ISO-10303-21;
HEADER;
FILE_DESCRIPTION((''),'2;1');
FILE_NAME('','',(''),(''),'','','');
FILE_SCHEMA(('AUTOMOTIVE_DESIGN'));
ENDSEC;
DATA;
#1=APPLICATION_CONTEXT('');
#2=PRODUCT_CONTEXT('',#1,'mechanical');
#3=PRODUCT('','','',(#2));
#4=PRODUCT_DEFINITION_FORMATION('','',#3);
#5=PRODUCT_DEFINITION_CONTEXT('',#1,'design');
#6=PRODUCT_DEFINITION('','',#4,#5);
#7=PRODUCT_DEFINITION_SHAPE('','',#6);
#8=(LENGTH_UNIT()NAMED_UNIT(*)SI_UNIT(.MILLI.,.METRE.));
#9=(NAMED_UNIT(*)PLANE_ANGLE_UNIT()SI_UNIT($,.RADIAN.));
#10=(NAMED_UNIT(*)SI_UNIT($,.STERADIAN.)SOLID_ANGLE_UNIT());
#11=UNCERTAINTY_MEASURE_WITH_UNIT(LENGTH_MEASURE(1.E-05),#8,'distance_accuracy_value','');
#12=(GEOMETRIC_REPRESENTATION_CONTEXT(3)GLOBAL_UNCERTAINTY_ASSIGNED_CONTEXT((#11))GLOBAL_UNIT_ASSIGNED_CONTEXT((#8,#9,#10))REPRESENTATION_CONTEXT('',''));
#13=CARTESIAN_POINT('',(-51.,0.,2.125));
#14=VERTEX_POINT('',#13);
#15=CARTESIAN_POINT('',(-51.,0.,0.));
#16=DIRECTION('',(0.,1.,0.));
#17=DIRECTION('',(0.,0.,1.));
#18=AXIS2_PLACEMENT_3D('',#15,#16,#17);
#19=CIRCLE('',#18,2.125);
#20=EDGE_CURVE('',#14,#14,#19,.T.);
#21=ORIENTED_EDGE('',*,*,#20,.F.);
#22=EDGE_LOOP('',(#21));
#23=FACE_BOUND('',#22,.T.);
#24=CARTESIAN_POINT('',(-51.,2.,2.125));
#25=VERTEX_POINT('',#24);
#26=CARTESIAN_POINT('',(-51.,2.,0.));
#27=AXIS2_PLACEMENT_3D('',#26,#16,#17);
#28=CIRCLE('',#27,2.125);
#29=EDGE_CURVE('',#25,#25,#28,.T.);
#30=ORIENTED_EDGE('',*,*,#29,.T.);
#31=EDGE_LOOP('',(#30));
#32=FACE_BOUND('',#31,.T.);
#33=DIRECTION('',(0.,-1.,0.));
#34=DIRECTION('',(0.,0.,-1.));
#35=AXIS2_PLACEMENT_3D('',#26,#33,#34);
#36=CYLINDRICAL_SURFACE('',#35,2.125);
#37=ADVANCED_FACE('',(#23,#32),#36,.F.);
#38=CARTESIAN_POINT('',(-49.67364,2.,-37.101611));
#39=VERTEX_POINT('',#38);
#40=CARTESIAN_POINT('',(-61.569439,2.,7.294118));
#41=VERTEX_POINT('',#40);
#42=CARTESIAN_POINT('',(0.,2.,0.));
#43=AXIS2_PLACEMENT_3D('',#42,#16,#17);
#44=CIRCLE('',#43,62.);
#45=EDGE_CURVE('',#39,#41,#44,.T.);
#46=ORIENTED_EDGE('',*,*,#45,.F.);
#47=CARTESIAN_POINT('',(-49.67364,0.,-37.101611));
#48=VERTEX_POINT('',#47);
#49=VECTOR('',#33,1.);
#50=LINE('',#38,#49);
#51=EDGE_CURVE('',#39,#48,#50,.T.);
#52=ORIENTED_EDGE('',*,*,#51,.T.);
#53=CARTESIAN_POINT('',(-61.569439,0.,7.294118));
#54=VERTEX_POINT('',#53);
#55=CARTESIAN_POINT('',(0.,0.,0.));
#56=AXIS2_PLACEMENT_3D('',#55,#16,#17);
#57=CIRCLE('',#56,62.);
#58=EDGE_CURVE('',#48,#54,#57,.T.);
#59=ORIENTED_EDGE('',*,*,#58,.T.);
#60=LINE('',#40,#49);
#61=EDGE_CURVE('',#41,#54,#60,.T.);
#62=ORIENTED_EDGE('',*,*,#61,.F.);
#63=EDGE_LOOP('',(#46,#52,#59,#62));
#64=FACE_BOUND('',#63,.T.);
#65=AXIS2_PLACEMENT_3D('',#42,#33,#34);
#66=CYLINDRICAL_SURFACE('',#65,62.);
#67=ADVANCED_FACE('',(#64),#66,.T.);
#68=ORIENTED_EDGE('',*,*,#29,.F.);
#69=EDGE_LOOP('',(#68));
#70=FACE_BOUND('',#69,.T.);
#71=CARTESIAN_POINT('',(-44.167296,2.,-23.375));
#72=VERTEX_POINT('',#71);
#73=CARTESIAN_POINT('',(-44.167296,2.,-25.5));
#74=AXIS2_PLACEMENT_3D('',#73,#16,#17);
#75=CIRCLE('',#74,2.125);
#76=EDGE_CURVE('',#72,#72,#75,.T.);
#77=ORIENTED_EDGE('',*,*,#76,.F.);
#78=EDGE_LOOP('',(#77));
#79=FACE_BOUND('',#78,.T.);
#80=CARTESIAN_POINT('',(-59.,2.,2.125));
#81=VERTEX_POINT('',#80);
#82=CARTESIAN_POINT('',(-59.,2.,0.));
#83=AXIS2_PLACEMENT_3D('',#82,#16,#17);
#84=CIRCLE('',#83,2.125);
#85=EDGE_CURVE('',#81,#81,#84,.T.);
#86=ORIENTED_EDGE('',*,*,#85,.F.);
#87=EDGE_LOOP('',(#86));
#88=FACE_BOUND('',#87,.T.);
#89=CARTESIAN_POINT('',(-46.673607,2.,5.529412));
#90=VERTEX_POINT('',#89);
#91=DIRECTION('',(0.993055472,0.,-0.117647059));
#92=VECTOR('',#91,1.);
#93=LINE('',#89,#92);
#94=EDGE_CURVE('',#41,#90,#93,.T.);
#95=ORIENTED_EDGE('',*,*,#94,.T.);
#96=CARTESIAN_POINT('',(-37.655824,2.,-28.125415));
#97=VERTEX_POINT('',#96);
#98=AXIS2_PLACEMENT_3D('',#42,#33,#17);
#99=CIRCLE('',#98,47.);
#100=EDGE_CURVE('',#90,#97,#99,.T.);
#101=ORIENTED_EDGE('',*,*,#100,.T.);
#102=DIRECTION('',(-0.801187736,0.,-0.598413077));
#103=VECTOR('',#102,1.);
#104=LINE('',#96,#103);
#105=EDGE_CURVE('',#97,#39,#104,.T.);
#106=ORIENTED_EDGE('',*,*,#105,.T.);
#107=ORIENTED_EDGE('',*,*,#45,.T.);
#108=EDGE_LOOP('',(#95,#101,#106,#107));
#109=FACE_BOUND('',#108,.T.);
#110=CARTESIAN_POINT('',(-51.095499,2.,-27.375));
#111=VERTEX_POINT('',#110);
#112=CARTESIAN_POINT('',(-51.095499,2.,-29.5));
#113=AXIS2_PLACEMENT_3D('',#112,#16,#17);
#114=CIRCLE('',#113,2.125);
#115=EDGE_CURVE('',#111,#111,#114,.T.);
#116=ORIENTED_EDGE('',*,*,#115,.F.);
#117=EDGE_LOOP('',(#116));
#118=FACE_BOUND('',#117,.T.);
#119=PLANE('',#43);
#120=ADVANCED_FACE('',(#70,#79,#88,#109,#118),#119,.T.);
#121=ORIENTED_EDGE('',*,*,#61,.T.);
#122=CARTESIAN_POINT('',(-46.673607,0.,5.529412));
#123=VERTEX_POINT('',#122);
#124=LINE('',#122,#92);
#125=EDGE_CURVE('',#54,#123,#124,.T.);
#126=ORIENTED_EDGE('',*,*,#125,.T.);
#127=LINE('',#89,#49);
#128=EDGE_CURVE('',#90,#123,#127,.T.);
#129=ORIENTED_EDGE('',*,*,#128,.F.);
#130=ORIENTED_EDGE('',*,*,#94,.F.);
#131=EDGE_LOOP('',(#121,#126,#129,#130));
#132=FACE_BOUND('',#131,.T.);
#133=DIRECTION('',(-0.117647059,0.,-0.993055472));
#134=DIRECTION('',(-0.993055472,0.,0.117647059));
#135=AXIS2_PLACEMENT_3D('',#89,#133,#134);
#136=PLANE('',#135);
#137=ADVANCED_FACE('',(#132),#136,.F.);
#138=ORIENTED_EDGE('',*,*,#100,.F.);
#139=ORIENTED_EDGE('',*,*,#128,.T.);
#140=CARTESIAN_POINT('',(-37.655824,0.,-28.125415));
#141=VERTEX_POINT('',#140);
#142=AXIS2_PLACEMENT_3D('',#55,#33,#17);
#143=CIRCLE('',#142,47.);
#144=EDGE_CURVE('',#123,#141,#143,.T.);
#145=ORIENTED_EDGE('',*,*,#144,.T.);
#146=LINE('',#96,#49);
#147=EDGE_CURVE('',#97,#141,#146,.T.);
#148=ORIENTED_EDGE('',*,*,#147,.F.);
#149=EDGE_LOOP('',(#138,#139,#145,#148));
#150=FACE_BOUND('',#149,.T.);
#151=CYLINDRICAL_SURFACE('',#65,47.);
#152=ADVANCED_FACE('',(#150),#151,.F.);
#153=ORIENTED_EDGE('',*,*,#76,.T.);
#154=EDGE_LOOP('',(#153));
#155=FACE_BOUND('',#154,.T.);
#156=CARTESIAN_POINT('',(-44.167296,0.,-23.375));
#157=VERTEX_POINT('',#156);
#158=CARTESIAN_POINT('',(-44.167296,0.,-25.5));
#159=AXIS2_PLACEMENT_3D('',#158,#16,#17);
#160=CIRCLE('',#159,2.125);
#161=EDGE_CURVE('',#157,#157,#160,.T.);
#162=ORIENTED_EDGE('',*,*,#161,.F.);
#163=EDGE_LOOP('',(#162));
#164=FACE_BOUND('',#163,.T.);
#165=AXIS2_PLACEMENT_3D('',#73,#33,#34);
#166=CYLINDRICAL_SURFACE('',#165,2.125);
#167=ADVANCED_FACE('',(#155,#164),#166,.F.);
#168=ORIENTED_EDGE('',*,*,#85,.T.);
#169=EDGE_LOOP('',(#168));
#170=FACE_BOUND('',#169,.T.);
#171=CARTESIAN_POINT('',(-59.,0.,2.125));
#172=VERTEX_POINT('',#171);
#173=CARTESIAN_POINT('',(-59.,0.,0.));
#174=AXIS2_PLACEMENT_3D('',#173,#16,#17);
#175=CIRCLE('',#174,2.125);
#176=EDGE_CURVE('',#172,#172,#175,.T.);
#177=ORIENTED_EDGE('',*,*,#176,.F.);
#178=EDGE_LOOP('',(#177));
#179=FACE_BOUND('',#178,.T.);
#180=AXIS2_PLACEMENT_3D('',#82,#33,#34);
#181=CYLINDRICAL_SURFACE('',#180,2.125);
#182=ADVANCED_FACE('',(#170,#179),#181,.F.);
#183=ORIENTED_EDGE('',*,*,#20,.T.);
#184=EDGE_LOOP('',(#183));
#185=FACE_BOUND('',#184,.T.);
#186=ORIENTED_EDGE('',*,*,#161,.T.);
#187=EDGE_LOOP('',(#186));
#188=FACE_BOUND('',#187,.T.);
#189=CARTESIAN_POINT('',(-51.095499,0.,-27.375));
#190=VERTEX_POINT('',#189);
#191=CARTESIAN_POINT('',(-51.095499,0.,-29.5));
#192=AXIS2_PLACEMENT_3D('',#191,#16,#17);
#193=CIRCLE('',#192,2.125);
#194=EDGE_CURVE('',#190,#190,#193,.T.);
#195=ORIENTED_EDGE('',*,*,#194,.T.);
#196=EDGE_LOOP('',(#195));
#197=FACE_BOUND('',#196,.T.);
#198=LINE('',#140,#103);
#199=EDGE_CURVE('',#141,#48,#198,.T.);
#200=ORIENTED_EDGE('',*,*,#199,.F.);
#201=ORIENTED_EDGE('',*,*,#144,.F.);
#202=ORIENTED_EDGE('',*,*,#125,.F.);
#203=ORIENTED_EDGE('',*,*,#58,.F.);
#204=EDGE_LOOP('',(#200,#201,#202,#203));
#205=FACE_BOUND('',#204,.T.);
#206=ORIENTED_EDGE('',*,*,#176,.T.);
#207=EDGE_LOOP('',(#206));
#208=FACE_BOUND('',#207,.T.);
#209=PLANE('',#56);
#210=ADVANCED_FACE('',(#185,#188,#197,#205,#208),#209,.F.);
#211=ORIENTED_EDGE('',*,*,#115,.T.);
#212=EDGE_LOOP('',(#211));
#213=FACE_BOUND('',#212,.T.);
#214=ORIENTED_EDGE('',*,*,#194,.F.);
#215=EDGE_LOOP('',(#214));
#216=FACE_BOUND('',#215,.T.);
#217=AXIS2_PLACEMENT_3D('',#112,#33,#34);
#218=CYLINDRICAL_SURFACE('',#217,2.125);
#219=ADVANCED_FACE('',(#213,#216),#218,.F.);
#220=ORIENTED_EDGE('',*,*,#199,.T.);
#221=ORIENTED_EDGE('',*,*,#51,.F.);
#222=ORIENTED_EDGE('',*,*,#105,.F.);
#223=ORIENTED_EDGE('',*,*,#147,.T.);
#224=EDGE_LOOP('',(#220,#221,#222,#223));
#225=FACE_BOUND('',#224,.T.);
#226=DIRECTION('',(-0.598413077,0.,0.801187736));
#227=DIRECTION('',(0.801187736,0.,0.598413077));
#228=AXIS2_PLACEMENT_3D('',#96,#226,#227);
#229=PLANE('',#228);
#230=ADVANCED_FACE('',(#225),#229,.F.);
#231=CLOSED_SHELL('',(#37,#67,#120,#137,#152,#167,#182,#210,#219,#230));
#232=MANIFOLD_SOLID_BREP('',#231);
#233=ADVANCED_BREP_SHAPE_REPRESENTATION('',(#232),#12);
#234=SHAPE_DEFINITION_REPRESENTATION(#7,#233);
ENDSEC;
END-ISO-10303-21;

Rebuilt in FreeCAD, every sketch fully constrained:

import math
import FreeCAD as App
import Part
import Sketcher

doc = App.newDocument("Part")
body = doc.addObject("PartDesign::Body", "Body")

# Sketch on XZ plane
sketch1 = body.newObject("Sketcher::SketchObject", "Sketch")
sketch1.AttachmentSupport = (doc.getObject("XZ_Plane"), [""])
sketch1.MapMode = "FlatFace"
sketch1.addGeometry(Part.LineSegment(App.Vector(-37.7, -28.1, 0), App.Vector(-49.7, -37.1, 0)), False)
sketch1.addGeometry(Part.ArcOfCircle(Part.Circle(App.Vector(0, 0, 0), App.Vector(0, 0, 1), 62), math.radians(173), math.radians(217)), False)
sketch1.addGeometry(Part.LineSegment(App.Vector(-61.6, 7.3, 0), App.Vector(-46.7, 5.5, 0)), False)
sketch1.addGeometry(Part.ArcOfCircle(Part.Circle(App.Vector(0, 0, 0), App.Vector(0, 0, 1), 47), math.radians(173), math.radians(217)), False)
sketch1.addGeometry(Part.Circle(App.Vector(-59, 0, 0), App.Vector(0, 0, 1), 2.1), False)
sketch1.addGeometry(Part.Circle(App.Vector(-51, 0, 0), App.Vector(0, 0, 1), 2.1), False)
sketch1.addGeometry(Part.Circle(App.Vector(-51.1, -29.5, 0), App.Vector(0, 0, 1), 2.1), False)
sketch1.addGeometry(Part.Circle(App.Vector(-44.2, -25.5, 0), App.Vector(0, 0, 1), 2.1), False)
sketch1.addConstraint(Sketcher.Constraint("Coincident", 0, 2, 1, 2))
sketch1.addConstraint(Sketcher.Constraint("Coincident", 1, 1, 2, 1))
sketch1.addConstraint(Sketcher.Constraint("Coincident", 2, 2, 3, 1))
sketch1.addConstraint(Sketcher.Constraint("Coincident", 3, 2, 0, 1))
sketch1.addConstraint(Sketcher.Constraint("Coincident", 1, 3, -1, 1))
sketch1.addConstraint(Sketcher.Constraint("Coincident", 3, 3, -1, 1))
sketch1.addConstraint(Sketcher.Constraint("Equal", 4, 5))
sketch1.addConstraint(Sketcher.Constraint("Equal", 5, 6))
sketch1.addConstraint(Sketcher.Constraint("Equal", 6, 7))
sketch1.addConstraint(Sketcher.Constraint("PointOnObject", 4, 3, -1))
sketch1.addConstraint(Sketcher.Constraint("PointOnObject", 5, 3, -1))
sketch1.addConstraint(Sketcher.Constraint("Radius", 1, 62.0))
sketch1.addConstraint(Sketcher.Constraint("Radius", 3, 47.0))
sketch1.addConstraint(Sketcher.Constraint("Diameter", 4, 4.25))
sketch1.addConstraint(Sketcher.Constraint("DistanceX", 4, 3, -1, 1, 59.0))
sketch1.addConstraint(Sketcher.Constraint("DistanceX", 5, 3, -1, 1, 51.0))
sketch1.addConstraint(Sketcher.Constraint("DistanceY", 6, 3, 7, 3, 4.0))
sketch1.addConstraint(Sketcher.Constraint("DistanceY", 6, 3, -1, 1, 29.5))
sketch1.addConstraint(Sketcher.Constraint("DistanceX", 6, 3, -1, 1, 51.095499))
sketch1.addConstraint(Sketcher.Constraint("DistanceX", 1, 1, 0, 2, 11.8958))
sketch1.addConstraint(Sketcher.Constraint("DistanceX", 0, 2, -1, 1, 49.67364))
sketch1.addConstraint(Sketcher.Constraint("DistanceY", -1, 1, 2, 2, 5.529412))
sketch1.addConstraint(Sketcher.Constraint("DistanceX", 2, 2, 7, 3, 2.506312))
sketch1.addConstraint(Sketcher.Constraint("DistanceX", 7, 3, 3, 2, 6.511472))
pad1 = body.newObject("PartDesign::Pad", "Pad")
pad1.Profile = sketch1
pad1.Length = 2
pad1.Reversed = True

doc.recompute()
